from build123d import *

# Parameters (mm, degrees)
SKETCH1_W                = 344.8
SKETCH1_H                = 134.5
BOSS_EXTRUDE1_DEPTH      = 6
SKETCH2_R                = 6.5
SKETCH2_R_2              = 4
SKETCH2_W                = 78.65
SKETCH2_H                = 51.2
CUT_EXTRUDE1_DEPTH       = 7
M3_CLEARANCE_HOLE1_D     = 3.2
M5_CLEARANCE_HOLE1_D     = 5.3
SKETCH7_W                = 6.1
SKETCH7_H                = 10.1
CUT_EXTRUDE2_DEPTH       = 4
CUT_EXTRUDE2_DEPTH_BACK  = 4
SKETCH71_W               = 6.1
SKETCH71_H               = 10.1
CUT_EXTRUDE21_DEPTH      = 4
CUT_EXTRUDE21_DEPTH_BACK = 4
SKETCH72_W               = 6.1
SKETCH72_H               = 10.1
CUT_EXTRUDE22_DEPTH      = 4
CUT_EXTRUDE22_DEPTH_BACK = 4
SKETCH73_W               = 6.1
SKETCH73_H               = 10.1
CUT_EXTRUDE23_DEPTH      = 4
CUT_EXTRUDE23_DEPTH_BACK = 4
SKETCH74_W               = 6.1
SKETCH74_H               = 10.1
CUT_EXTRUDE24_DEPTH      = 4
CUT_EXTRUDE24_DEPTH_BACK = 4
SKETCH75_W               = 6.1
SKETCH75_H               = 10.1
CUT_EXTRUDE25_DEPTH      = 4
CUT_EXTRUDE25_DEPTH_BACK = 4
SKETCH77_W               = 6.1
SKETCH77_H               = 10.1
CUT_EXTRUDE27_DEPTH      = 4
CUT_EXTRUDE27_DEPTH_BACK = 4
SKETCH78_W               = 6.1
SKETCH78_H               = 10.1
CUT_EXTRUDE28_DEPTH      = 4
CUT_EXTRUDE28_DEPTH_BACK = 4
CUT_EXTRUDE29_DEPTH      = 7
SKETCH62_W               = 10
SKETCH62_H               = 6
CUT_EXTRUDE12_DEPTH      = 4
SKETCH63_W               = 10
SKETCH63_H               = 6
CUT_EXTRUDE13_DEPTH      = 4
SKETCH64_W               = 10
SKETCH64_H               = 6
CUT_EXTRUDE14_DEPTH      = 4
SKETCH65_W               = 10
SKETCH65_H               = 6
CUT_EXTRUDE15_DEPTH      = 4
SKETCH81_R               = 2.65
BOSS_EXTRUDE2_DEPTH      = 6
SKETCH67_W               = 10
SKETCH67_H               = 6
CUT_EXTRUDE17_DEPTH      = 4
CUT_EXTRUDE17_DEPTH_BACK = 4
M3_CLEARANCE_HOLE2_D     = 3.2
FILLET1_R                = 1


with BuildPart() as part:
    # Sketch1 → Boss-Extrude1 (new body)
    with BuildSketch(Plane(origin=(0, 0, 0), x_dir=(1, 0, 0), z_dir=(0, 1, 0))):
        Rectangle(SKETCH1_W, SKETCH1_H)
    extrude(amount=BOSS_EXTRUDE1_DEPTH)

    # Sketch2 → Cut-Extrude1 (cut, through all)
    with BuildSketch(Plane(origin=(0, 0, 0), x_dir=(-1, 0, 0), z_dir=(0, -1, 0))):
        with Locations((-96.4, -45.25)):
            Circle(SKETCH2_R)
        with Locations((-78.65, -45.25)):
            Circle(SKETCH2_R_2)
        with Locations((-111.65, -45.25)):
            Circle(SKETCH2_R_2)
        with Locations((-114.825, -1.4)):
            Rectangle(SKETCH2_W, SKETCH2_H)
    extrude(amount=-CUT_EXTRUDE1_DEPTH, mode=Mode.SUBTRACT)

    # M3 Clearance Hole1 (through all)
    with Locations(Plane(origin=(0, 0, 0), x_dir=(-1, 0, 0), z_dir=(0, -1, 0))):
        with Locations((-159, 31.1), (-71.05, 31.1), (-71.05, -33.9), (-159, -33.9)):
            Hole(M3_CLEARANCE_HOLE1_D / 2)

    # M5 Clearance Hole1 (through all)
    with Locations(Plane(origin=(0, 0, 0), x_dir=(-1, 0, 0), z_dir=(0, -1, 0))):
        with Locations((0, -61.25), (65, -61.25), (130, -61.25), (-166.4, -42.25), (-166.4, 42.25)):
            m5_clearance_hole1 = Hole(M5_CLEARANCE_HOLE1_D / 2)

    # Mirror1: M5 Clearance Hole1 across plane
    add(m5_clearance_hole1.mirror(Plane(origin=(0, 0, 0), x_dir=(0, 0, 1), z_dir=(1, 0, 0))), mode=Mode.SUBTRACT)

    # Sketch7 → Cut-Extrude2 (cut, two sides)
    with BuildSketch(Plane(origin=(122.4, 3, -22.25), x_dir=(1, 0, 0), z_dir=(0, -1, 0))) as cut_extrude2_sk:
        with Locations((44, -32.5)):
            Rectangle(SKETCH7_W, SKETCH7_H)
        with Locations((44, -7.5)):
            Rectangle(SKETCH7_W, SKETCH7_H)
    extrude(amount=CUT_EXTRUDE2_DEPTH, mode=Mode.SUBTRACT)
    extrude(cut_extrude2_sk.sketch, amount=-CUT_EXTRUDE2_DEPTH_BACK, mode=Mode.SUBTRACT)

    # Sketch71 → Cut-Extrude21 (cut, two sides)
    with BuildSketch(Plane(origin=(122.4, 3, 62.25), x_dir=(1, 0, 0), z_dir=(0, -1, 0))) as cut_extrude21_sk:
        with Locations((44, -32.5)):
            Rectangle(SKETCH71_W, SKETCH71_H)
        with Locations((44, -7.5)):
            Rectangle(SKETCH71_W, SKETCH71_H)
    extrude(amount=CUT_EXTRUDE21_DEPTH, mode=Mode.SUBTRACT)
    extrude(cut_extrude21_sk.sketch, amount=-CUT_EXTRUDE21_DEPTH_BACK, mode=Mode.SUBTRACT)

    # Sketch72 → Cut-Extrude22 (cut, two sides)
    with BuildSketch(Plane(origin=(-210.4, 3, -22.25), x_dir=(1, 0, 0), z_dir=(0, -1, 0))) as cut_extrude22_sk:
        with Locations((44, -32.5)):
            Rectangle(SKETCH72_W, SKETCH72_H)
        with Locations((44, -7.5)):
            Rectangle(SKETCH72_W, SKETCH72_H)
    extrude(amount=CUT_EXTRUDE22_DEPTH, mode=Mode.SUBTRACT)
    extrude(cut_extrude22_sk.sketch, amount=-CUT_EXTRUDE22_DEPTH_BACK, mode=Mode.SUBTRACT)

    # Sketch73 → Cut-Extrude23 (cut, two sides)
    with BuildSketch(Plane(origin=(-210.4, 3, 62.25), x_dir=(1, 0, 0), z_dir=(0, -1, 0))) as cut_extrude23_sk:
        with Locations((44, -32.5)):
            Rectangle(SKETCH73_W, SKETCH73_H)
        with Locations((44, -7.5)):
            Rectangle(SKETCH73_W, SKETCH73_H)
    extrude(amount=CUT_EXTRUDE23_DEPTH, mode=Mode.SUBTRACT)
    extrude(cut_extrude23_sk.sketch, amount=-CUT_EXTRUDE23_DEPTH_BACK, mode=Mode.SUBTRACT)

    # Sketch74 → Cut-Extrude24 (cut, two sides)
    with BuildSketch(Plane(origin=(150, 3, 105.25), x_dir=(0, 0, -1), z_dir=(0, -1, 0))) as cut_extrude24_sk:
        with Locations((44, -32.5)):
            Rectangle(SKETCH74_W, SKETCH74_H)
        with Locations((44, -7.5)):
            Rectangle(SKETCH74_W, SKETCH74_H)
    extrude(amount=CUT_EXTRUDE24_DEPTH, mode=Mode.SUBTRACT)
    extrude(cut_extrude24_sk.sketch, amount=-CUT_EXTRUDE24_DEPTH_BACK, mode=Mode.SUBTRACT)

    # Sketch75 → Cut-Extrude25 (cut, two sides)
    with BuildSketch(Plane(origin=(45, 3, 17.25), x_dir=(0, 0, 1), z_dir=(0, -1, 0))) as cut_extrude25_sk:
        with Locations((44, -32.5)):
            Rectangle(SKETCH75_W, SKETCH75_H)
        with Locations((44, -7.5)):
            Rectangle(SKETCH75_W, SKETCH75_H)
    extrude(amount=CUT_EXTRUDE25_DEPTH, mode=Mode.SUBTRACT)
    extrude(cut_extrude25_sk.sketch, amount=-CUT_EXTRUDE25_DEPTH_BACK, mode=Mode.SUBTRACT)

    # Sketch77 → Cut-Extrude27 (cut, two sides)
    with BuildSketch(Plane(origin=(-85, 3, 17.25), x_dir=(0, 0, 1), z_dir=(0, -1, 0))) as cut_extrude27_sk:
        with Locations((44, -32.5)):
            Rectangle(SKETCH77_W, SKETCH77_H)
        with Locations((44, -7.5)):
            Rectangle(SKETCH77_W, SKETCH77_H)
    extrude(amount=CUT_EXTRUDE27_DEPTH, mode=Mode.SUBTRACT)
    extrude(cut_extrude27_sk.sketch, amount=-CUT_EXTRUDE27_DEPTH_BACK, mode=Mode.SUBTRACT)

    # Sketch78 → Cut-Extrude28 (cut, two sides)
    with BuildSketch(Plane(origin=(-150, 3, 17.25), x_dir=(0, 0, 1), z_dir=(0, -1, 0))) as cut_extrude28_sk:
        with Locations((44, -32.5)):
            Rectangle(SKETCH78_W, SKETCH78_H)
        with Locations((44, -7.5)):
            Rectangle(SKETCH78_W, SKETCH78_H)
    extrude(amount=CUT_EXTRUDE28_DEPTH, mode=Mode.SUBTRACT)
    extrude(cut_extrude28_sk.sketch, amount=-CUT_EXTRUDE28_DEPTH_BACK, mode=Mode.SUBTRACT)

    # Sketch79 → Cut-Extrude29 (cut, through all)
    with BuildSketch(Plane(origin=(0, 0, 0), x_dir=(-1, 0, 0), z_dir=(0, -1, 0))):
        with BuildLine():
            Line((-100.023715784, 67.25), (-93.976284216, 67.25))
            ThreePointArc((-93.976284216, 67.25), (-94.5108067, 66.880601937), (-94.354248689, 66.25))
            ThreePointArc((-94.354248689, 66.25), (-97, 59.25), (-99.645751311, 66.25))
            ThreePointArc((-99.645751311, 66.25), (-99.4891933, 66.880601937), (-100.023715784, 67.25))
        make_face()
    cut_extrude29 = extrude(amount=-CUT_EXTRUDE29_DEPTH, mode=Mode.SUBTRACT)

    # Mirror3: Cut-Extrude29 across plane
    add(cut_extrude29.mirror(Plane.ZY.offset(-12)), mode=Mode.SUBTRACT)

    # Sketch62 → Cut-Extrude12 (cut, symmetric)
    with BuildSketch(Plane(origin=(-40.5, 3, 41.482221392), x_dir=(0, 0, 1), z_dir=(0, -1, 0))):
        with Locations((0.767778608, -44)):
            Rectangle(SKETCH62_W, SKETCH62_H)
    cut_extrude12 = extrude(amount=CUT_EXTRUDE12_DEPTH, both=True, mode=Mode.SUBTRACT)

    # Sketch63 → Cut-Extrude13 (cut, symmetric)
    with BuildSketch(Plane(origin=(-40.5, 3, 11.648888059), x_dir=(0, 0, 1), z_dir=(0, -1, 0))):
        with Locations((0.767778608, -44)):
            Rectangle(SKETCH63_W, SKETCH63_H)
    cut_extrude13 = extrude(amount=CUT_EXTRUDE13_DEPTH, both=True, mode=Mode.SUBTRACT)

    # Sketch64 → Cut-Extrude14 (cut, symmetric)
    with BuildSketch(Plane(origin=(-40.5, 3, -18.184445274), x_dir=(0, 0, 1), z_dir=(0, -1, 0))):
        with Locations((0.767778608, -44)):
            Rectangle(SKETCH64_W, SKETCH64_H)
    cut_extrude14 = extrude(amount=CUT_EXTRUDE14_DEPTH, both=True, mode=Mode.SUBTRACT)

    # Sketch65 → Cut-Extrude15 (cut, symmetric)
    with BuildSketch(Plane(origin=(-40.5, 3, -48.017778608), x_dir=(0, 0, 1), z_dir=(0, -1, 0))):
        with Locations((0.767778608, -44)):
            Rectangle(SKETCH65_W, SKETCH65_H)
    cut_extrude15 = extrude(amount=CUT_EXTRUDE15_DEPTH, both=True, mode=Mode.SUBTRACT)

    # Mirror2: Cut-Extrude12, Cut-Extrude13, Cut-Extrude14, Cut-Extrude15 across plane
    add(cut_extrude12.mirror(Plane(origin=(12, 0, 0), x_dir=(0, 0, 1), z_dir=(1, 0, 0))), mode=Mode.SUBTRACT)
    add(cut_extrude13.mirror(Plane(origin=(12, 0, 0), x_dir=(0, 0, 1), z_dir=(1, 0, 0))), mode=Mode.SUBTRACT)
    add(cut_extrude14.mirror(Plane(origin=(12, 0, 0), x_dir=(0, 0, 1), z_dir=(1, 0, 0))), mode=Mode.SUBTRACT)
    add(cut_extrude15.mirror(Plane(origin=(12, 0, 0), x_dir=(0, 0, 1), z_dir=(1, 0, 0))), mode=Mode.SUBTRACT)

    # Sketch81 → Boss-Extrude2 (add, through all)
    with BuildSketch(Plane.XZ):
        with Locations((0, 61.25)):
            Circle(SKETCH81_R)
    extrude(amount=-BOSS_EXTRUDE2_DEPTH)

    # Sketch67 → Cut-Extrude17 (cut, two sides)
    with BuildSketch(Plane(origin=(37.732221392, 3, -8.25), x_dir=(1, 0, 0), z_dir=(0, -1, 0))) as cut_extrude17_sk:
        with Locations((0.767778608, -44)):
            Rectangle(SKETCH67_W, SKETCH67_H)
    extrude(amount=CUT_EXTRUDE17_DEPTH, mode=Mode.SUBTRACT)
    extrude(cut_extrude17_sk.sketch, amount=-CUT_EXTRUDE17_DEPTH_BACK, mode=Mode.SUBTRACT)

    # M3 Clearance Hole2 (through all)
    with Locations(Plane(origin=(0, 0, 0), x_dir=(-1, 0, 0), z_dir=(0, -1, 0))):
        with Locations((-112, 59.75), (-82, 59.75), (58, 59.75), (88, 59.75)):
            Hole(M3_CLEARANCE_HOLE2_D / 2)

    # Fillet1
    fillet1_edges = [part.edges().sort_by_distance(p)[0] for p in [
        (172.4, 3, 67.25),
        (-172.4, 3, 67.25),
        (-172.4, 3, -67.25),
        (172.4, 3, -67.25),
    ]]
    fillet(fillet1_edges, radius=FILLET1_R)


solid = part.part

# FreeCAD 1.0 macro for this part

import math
import FreeCAD as App
import Part
import Sketcher
from FreeCAD import Vector


def edges_at(feature, points):
    """Names of the edges that pass closest to the given points."""
    edges = feature.Shape.Edges
    near = lambda p: min(range(len(edges)), key=lambda i: edges[i].distToShape(Part.Vertex(*p))[0])
    return sorted({f"Edge{near(p) + 1}" for p in points})

doc = App.newDocument("Part")
body = doc.addObject("PartDesign::Body", "Body")

# Sketch on XZ plane
sketch1 = body.newObject("Sketcher::SketchObject", "Sketch")
sketch1.AttachmentSupport = (doc.getObject("XZ_Plane"), [""])
sketch1.MapMode = "FlatFace"
sketch1.addGeometry([
    Part.LineSegment(Vector(-172, -67, 0), Vector(-172, 67, 0)),
    Part.LineSegment(Vector(-172, 67, 0), Vector(172, 67, 0)),
    Part.LineSegment(Vector(172, 67, 0), Vector(172, -67, 0)),
    Part.LineSegment(Vector(172, -67, 0), Vector(-172, -67, 0)),
], False)
sketch1.addConstraint([
    Sketcher.Constraint("Coincident", 0, 2, 1, 1),
    Sketcher.Constraint("Coincident", 1, 2, 2, 1),
    Sketcher.Constraint("Coincident", 2, 2, 3, 1),
    Sketcher.Constraint("Coincident", 3, 2, 0, 1),
    Sketcher.Constraint("Vertical", 0),
    Sketcher.Constraint("Horizontal", 1),
    Sketcher.Constraint("Vertical", 2),
    Sketcher.Constraint("Horizontal", 3),
    Sketcher.Constraint("Symmetric", 0, 2, 2, 2, -1, 1),
    Sketcher.Constraint("DistanceX", 1, 1, 1, 2, 344.8),
    Sketcher.Constraint("DistanceY", 0, 1, 0, 2, 134.5),
])
pad1 = body.newObject("PartDesign::Pad", "Pad")
pad1.Profile = sketch1
pad1.Length = 6
pad1.Reversed = True

# Sketch on XZ plane
sketch2 = body.newObject("Sketcher::SketchObject", "Sketch001")
sketch2.AttachmentSupport = (doc.getObject("XZ_Plane"), [""])
sketch2.MapMode = "FlatFace"
sketch2.addGeometry([
    Part.Circle(Vector(96.4, 45.2, 0), Vector(0, 0, 1), 6.5),  # 0
    Part.Circle(Vector(78.7, 45.2, 0), Vector(0, 0, 1), 4),  # 1
    Part.Circle(Vector(111.7, 45.2, 0), Vector(0, 0, 1), 4),  # 2
    Part.LineSegment(Vector(154.2, -24.2, 0), Vector(154.2, 27, 0)),  # 3
    Part.LineSegment(Vector(154.2, 27, 0), Vector(75.5, 27, 0)),  # 4
    Part.LineSegment(Vector(75.5, 27, 0), Vector(75.5, -24.2, 0)),  # 5
    Part.LineSegment(Vector(75.5, -24.2, 0), Vector(154.2, -24.2, 0)),  # 6
], False)
sketch2.addConstraint([
    Sketcher.Constraint("Coincident", 3, 2, 4, 1),
    Sketcher.Constraint("Coincident", 4, 2, 5, 1),
    Sketcher.Constraint("Coincident", 5, 2, 6, 1),
    Sketcher.Constraint("Coincident", 6, 2, 3, 1),
    Sketcher.Constraint("Vertical", 3),
    Sketcher.Constraint("Horizontal", 4),
    Sketcher.Constraint("Vertical", 5),
    Sketcher.Constraint("Horizontal", 6),
    Sketcher.Constraint("Equal", 1, 2),
    Sketcher.Constraint("Horizontal", 0, 3, 1, 3),
    Sketcher.Constraint("Horizontal", 1, 3, 2, 3),
    Sketcher.Constraint("Diameter", 0, 13.0),
    Sketcher.Constraint("Diameter", 1, 8.0),
    Sketcher.Constraint("DistanceY", 3, 1, 3, 2, 51.2),
    Sketcher.Constraint("DistanceY", -1, 1, 3, 2, 27.0),
    Sketcher.Constraint("DistanceX", 1, 3, 2, 3, 33.0),
    Sketcher.Constraint("DistanceX", 4, 2, 4, 1, 78.65),
    Sketcher.Constraint("DistanceX", -1, 1, 0, 3, 96.4),
    Sketcher.Constraint("DistanceX", -1, 1, 4, 2, 75.5),
    Sketcher.Constraint("DistanceX", 2, 3, 3, 2, 42.5),
    Sketcher.Constraint("DistanceY", -1, 1, 0, 3, 45.25),
])
pocket1 = body.newObject("PartDesign::Pocket", "Pocket")
pocket1.Profile = sketch2
pocket1.Type = "ThroughAll"

# Sketch on XZ plane
sketch3 = body.newObject("Sketcher::SketchObject", "Sketch002")
sketch3.AttachmentSupport = (doc.getObject("XZ_Plane"), [""])
sketch3.MapMode = "FlatFace"
sketch3.addGeometry([
    Part.Circle(Vector(159, -31.1, 0), Vector(0, 0, 1), 1.6),
    Part.Circle(Vector(71, -31.1, 0), Vector(0, 0, 1), 1.6),
    Part.Circle(Vector(71, 33.9, 0), Vector(0, 0, 1), 1.6),
    Part.Circle(Vector(159, 33.9, 0), Vector(0, 0, 1), 1.6),
], False)
sketch3.addConstraint([
    Sketcher.Constraint("Equal", 0, 1),
    Sketcher.Constraint("Equal", 1, 2),
    Sketcher.Constraint("Equal", 2, 3),
    Sketcher.Constraint("Horizontal", 0, 3, 1, 3),
    Sketcher.Constraint("Horizontal", 2, 3, 3, 3),
    Sketcher.Constraint("Vertical", 1, 3, 2, 3),
    Sketcher.Constraint("Vertical", 0, 3, 3, 3),
    Sketcher.Constraint("Diameter", 0, 3.2),
    Sketcher.Constraint("DistanceX", -1, 1, 0, 3, 159.0),
    Sketcher.Constraint("DistanceY", 1, 3, 2, 3, 65.0),
    Sketcher.Constraint("DistanceY", 0, 3, -1, 1, 31.1),
    Sketcher.Constraint("DistanceX", -1, 1, 1, 3, 71.05),
])
doc.recompute()
hole = body.newObject("PartDesign::Hole", "Hole")
hole.Profile = sketch3
hole.ThreadType = "None"
hole.Diameter = 3.2
hole.DepthType = "ThroughAll"

# Sketch on XZ plane
sketch4 = body.newObject("Sketcher::SketchObject", "Sketch003")
sketch4.AttachmentSupport = (doc.getObject("XZ_Plane"), [""])
sketch4.MapMode = "FlatFace"
sketch4.addGeometry([
    Part.Circle(Vector(0, 61.2, 0), Vector(0, 0, 1), 2.6),  # 0
    Part.Circle(Vector(-65, 61.2, 0), Vector(0, 0, 1), 2.6),  # 1
    Part.Circle(Vector(-130, 61.2, 0), Vector(0, 0, 1), 2.6),  # 2
    Part.Circle(Vector(166.4, 42.2, 0), Vector(0, 0, 1), 2.6),  # 3
    Part.Circle(Vector(166.4, -42.2, 0), Vector(0, 0, 1), 2.6),  # 4
], False)
sketch4.addConstraint([
    Sketcher.Constraint("Equal", 0, 1),
    Sketcher.Constraint("Equal", 1, 2),
    Sketcher.Constraint("Equal", 2, 3),
    Sketcher.Constraint("Equal", 3, 4),
    Sketcher.Constraint("Symmetric", 3, 3, 4, 3, -1),
    Sketcher.Constraint("PointOnObject", 0, 3, -2),
    Sketcher.Constraint("Horizontal", 0, 3, 1, 3),
    Sketcher.Constraint("Horizontal", 1, 3, 2, 3),
    Sketcher.Constraint("Diameter", 0, 5.3),
    Sketcher.Constraint("DistanceX", 1, 3, -1, 1, 65.0),
    Sketcher.Constraint("DistanceX", 2, 3, -1, 1, 130.0),
    Sketcher.Constraint("DistanceY", 3, 3, 0, 3, 19.0),
    Sketcher.Constraint("DistanceX", -1, 1, 3, 3, 166.4),
    Sketcher.Constraint("DistanceY", 4, 3, 3, 3, 84.5),
])
doc.recompute()
hole2 = body.newObject("PartDesign::Hole", "Hole001")
hole2.Profile = sketch4
hole2.ThreadType = "None"
hole2.Diameter = 5.3
hole2.DepthType = "ThroughAll"
doc.recompute()

mirrored = body.newObject("PartDesign::Mirrored", "Mirrored")
mirrored.Originals = [hole2]
mirrored.MirrorPlane = (doc.getObject("YZ_Plane"), [""])
body.Tip = mirrored

# Sketch on XZ plane
sketch5 = body.newObject("Sketcher::SketchObject", "Sketch004")
sketch5.AttachmentSupport = (doc.getObject("XZ_Plane"), [""])
sketch5.MapMode = "FlatFace"
sketch5.AttachmentOffset = App.Placement(Vector(0, 0, -3), App.Rotation())
sketch5.addGeometry([
    Part.LineSegment(Vector(163, -50, 0), Vector(163, -60, 0)),  # 0
    Part.LineSegment(Vector(163, -60, 0), Vector(169, -60, 0)),  # 1
    Part.LineSegment(Vector(169, -60, 0), Vector(169, -50, 0)),  # 2
    Part.LineSegment(Vector(169, -50, 0), Vector(163, -50, 0)),  # 3
    Part.LineSegment(Vector(163, -25, 0), Vector(163, -35, 0)),  # 4
    Part.LineSegment(Vector(163, -35, 0), Vector(169, -35, 0)),  # 5
    Part.LineSegment(Vector(169, -35, 0), Vector(169, -25, 0)),  # 6
    Part.LineSegment(Vector(169, -25, 0), Vector(163, -25, 0)),  # 7
], False)
sketch5.addConstraint([
    Sketcher.Constraint("Coincident", 0, 2, 1, 1),
    Sketcher.Constraint("Coincident", 1, 2, 2, 1),
    Sketcher.Constraint("Coincident", 2, 2, 3, 1),
    Sketcher.Constraint("Coincident", 3, 2, 0, 1),
    Sketcher.Constraint("Coincident", 4, 2, 5, 1),
    Sketcher.Constraint("Coincident", 5, 2, 6, 1),
    Sketcher.Constraint("Coincident", 6, 2, 7, 1),
    Sketcher.Constraint("Coincident", 7, 2, 4, 1),
    Sketcher.Constraint("Vertical", 0),
    Sketcher.Constraint("Horizontal", 1),
    Sketcher.Constraint("Vertical", 2),
    Sketcher.Constraint("Horizontal", 3),
    Sketcher.Constraint("Vertical", 4),
    Sketcher.Constraint("Horizontal", 5),
    Sketcher.Constraint("Vertical", 6),
    Sketcher.Constraint("Horizontal", 7),
    Sketcher.Constraint("Vertical", 3, 2, 4, 2),
    Sketcher.Constraint("Vertical", 2, 2, 5, 2),
    Sketcher.Constraint("Equal", 2, 4),
    Sketcher.Constraint("DistanceX", 1, 1, 1, 2, 6.1),
    Sketcher.Constraint("DistanceY", 0, 2, 0, 1, 10.1),
    Sketcher.Constraint("DistanceY", 0, 2, 4, 2, 25.0),
    Sketcher.Constraint("DistanceY", 0, 2, -1, 1, 59.8),
    Sketcher.Constraint("DistanceX", -1, 1, 0, 2, 163.35),
])
pocket2 = body.newObject("PartDesign::Pocket", "Pocket001")
pocket2.Profile = sketch5
pocket2.Type = "ThroughAll"
pocket2.Midplane = True

# Sketch on XZ plane
sketch6 = body.newObject("Sketcher::SketchObject", "Sketch005")
sketch6.AttachmentSupport = (doc.getObject("XZ_Plane"), [""])
sketch6.MapMode = "FlatFace"
sketch6.AttachmentOffset = App.Placement(Vector(0, 0, -3), App.Rotation())
sketch6.addGeometry([
    Part.LineSegment(Vector(163, 35, 0), Vector(163, 25, 0)),  # 0
    Part.LineSegment(Vector(163, 25, 0), Vector(169, 25, 0)),  # 1
    Part.LineSegment(Vector(169, 25, 0), Vector(169, 35, 0)),  # 2
    Part.LineSegment(Vector(169, 35, 0), Vector(163, 35, 0)),  # 3
    Part.LineSegment(Vector(163, 60, 0), Vector(163, 50, 0)),  # 4
    Part.LineSegment(Vector(163, 50, 0), Vector(169, 50, 0)),  # 5
    Part.LineSegment(Vector(169, 50, 0), Vector(169, 60, 0)),  # 6
    Part.LineSegment(Vector(169, 60, 0), Vector(163, 60, 0)),  # 7
], False)
sketch6.addConstraint([
    Sketcher.Constraint("Coincident", 0, 2, 1, 1),
    Sketcher.Constraint("Coincident", 1, 2, 2, 1),
    Sketcher.Constraint("Coincident", 2, 2, 3, 1),
    Sketcher.Constraint("Coincident", 3, 2, 0, 1),
    Sketcher.Constraint("Coincident", 4, 2, 5, 1),
    Sketcher.Constraint("Coincident", 5, 2, 6, 1),
    Sketcher.Constraint("Coincident", 6, 2, 7, 1),
    Sketcher.Constraint("Coincident", 7, 2, 4, 1),
    Sketcher.Constraint("Vertical", 0),
    Sketcher.Constraint("Horizontal", 1),
    Sketcher.Constraint("Vertical", 2),
    Sketcher.Constraint("Horizontal", 3),
    Sketcher.Constraint("Vertical", 4),
    Sketcher.Constraint("Horizontal", 5),
    Sketcher.Constraint("Vertical", 6),
    Sketcher.Constraint("Horizontal", 7),
    Sketcher.Constraint("Vertical", 3, 2, 4, 2),
    Sketcher.Constraint("Vertical", 2, 2, 5, 2),
    Sketcher.Constraint("Equal", 2, 4),
    Sketcher.Constraint("DistanceX", 1, 1, 1, 2, 6.1),
    Sketcher.Constraint("DistanceY", 0, 2, 0, 1, 10.1),
    Sketcher.Constraint("DistanceY", 0, 2, 4, 2, 25.0),
    Sketcher.Constraint("DistanceY", -1, 1, 0, 2, 24.7),
    Sketcher.Constraint("DistanceX", -1, 1, 0, 2, 163.35),
])
pocket3 = body.newObject("PartDesign::Pocket", "Pocket002")
pocket3.Profile = sketch6
pocket3.Type = "ThroughAll"
pocket3.Midplane = True

# Sketch on XZ plane
sketch7 = body.newObject("Sketcher::SketchObject", "Sketch006")
sketch7.AttachmentSupport = (doc.getObject("XZ_Plane"), [""])
sketch7.MapMode = "FlatFace"
sketch7.AttachmentOffset = App.Placement(Vector(0, 0, -3), App.Rotation())
sketch7.addGeometry([
    Part.LineSegment(Vector(-169, -50, 0), Vector(-169, -60, 0)),  # 0
    Part.LineSegment(Vector(-169, -60, 0), Vector(-163, -60, 0)),  # 1
    Part.LineSegment(Vector(-163, -60, 0), Vector(-163, -50, 0)),  # 2
    Part.LineSegment(Vector(-163, -50, 0), Vector(-169, -50, 0)),  # 3
    Part.LineSegment(Vector(-169, -25, 0), Vector(-169, -35, 0)),  # 4
    Part.LineSegment(Vector(-169, -35, 0), Vector(-163, -35, 0)),  # 5
    Part.LineSegment(Vector(-163, -35, 0), Vector(-163, -25, 0)),  # 6
    Part.LineSegment(Vector(-163, -25, 0), Vector(-169, -25, 0)),  # 7
], False)
sketch7.addConstraint([
    Sketcher.Constraint("Coincident", 0, 2, 1, 1),
    Sketcher.Constraint("Coincident", 1, 2, 2, 1),
    Sketcher.Constraint("Coincident", 2, 2, 3, 1),
    Sketcher.Constraint("Coincident", 3, 2, 0, 1),
    Sketcher.Constraint("Coincident", 4, 2, 5, 1),
    Sketcher.Constraint("Coincident", 5, 2, 6, 1),
    Sketcher.Constraint("Coincident", 6, 2, 7, 1),
    Sketcher.Constraint("Coincident", 7, 2, 4, 1),
    Sketcher.Constraint("Vertical", 0),
    Sketcher.Constraint("Horizontal", 1),
    Sketcher.Constraint("Vertical", 2),
    Sketcher.Constraint("Horizontal", 3),
    Sketcher.Constraint("Vertical", 4),
    Sketcher.Constraint("Horizontal", 5),
    Sketcher.Constraint("Vertical", 6),
    Sketcher.Constraint("Horizontal", 7),
    Sketcher.Constraint("Vertical", 3, 2, 4, 2),
    Sketcher.Constraint("Vertical", 2, 2, 5, 2),
    Sketcher.Constraint("Equal", 2, 4),
    Sketcher.Constraint("DistanceX", 1, 1, 1, 2, 6.1),
    Sketcher.Constraint("DistanceY", 0, 2, 0, 1, 10.1),
    Sketcher.Constraint("DistanceY", 0, 2, 4, 2, 25.0),
    Sketcher.Constraint("DistanceY", 0, 2, -1, 1, 59.8),
    Sketcher.Constraint("DistanceX", 0, 2, -1, 1, 169.45),
])
pocket4 = body.newObject("PartDesign::Pocket", "Pocket003")
pocket4.Profile = sketch7
pocket4.Type = "ThroughAll"
pocket4.Midplane = True

# Sketch on XZ plane
sketch8 = body.newObject("Sketcher::SketchObject", "Sketch007")
sketch8.AttachmentSupport = (doc.getObject("XZ_Plane"), [""])
sketch8.MapMode = "FlatFace"
sketch8.AttachmentOffset = App.Placement(Vector(0, 0, -3), App.Rotation())
sketch8.addGeometry([
    Part.LineSegment(Vector(-169, 35, 0), Vector(-169, 25, 0)),  # 0
    Part.LineSegment(Vector(-169, 25, 0), Vector(-163, 25, 0)),  # 1
    Part.LineSegment(Vector(-163, 25, 0), Vector(-163, 35, 0)),  # 2
    Part.LineSegment(Vector(-163, 35, 0), Vector(-169, 35, 0)),  # 3
    Part.LineSegment(Vector(-169, 60, 0), Vector(-169, 50, 0)),  # 4
    Part.LineSegment(Vector(-169, 50, 0), Vector(-163, 50, 0)),  # 5
    Part.LineSegment(Vector(-163, 50, 0), Vector(-163, 60, 0)),  # 6
    Part.LineSegment(Vector(-163, 60, 0), Vector(-169, 60, 0)),  # 7
], False)
sketch8.addConstraint([
    Sketcher.Constraint("Coincident", 0, 2, 1, 1),
    Sketcher.Constraint("Coincident", 1, 2, 2, 1),
    Sketcher.Constraint("Coincident", 2, 2, 3, 1),
    Sketcher.Constraint("Coincident", 3, 2, 0, 1),
    Sketcher.Constraint("Coincident", 4, 2, 5, 1),
    Sketcher.Constraint("Coincident", 5, 2, 6, 1),
    Sketcher.Constraint("Coincident", 6, 2, 7, 1),
    Sketcher.Constraint("Coincident", 7, 2, 4, 1),
    Sketcher.Constraint("Vertical", 0),
    Sketcher.Constraint("Horizontal", 1),
    Sketcher.Constraint("Vertical", 2),
    Sketcher.Constraint("Horizontal", 3),
    Sketcher.Constraint("Vertical", 4),
    Sketcher.Constraint("Horizontal", 5),
    Sketcher.Constraint("Vertical", 6),
    Sketcher.Constraint("Horizontal", 7),
    Sketcher.Constraint("Vertical", 3, 2, 4, 2),
    Sketcher.Constraint("Vertical", 2, 2, 5, 2),
    Sketcher.Constraint("Equal", 2, 4),
    Sketcher.Constraint("DistanceX", 1, 1, 1, 2, 6.1),
    Sketcher.Constraint("DistanceY", 0, 2, 0, 1, 10.1),
    Sketcher.Constraint("DistanceY", 0, 2, 4, 2, 25.0),
    Sketcher.Constraint("DistanceY", -1, 1, 0, 2, 24.7),
    Sketcher.Constraint("DistanceX", 0, 2, -1, 1, 169.45),
])
pocket5 = body.newObject("PartDesign::Pocket", "Pocket004")
pocket5.Profile = sketch8
pocket5.Type = "ThroughAll"
pocket5.Midplane = True

# Sketch on XZ plane
sketch9 = body.newObject("Sketcher::SketchObject", "Sketch008")
sketch9.AttachmentSupport = (doc.getObject("XZ_Plane"), [""])
sketch9.MapMode = "FlatFace"
sketch9.AttachmentOffset = App.Placement(Vector(0, 0, -3), App.Rotation())
sketch9.addGeometry([
    Part.LineSegment(Vector(123, 64, 0), Vector(112, 64, 0)),  # 0
    Part.LineSegment(Vector(112, 64, 0), Vector(112, 58, 0)),  # 1
    Part.LineSegment(Vector(112, 58, 0), Vector(123, 58, 0)),  # 2
    Part.LineSegment(Vector(123, 58, 0), Vector(123, 64, 0)),  # 3
    Part.LineSegment(Vector(148, 64, 0), Vector(137, 64, 0)),  # 4
    Part.LineSegment(Vector(137, 64, 0), Vector(137, 58, 0)),  # 5
    Part.LineSegment(Vector(137, 58, 0), Vector(148, 58, 0)),  # 6
    Part.LineSegment(Vector(148, 58, 0), Vector(148, 64, 0)),  # 7
], False)
sketch9.addConstraint([
    Sketcher.Constraint("Coincident", 0, 2, 1, 1),
    Sketcher.Constraint("Coincident", 1, 2, 2, 1),
    Sketcher.Constraint("Coincident", 2, 2, 3, 1),
    Sketcher.Constraint("Coincident", 3, 2, 0, 1),
    Sketcher.Constraint("Coincident", 4, 2, 5, 1),
    Sketcher.Constraint("Coincident", 5, 2, 6, 1),
    Sketcher.Constraint("Coincident", 6, 2, 7, 1),
    Sketcher.Constraint("Coincident", 7, 2, 4, 1),
    Sketcher.Constraint("Horizontal", 0),
    Sketcher.Constraint("Vertical", 1),
    Sketcher.Constraint("Horizontal", 2),
    Sketcher.Constraint("Vertical", 3),
    Sketcher.Constraint("Horizontal", 4),
    Sketcher.Constraint("Vertical", 5),
    Sketcher.Constraint("Horizontal", 6),
    Sketcher.Constraint("Vertical", 7),
    Sketcher.Constraint("Horizontal", 3, 2, 4, 2),
    Sketcher.Constraint("Horizontal", 2, 2, 5, 2),
    Sketcher.Constraint("Equal", 2, 4),
    Sketcher.Constraint("DistanceX", 0, 2, 0, 1, 10.1),
    Sketcher.Constraint("DistanceY", 1, 2, 1, 1, 6.1),
    Sketcher.Constraint("DistanceX", 0, 2, 4, 2, 25.0),
    Sketcher.Constraint("DistanceY", -1, 1, 0, 2, 64.3),
    Sketcher.Constraint("DistanceX", -1, 1, 0, 2, 112.45),
])
pocket6 = body.newObject("PartDesign::Pocket", "Pocket005")
pocket6.Profile = sketch9
pocket6.Type = "ThroughAll"
pocket6.Midplane = True

# Sketch on XZ plane
sketch10 = body.newObject("Sketcher::SketchObject", "Sketch009")
sketch10.AttachmentSupport = (doc.getObject("XZ_Plane"), [""])
sketch10.MapMode = "FlatFace"
sketch10.AttachmentOffset = App.Placement(Vector(0, 0, -3), App.Rotation())
sketch10.addGeometry([
    Part.LineSegment(Vector(72, 58, 0), Vector(83, 58, 0)),  # 0
    Part.LineSegment(Vector(83, 58, 0), Vector(83, 64, 0)),  # 1
    Part.LineSegment(Vector(83, 64, 0), Vector(72, 64, 0)),  # 2
    Part.LineSegment(Vector(72, 64, 0), Vector(72, 58, 0)),  # 3
    Part.LineSegment(Vector(47, 58, 0), Vector(58, 58, 0)),  # 4
    Part.LineSegment(Vector(58, 58, 0), Vector(58, 64, 0)),  # 5
    Part.LineSegment(Vector(58, 64, 0), Vector(47, 64, 0)),  # 6
    Part.LineSegment(Vector(47, 64, 0), Vector(47, 58, 0)),  # 7
], False)
sketch10.addConstraint([
    Sketcher.Constraint("Coincident", 0, 2, 1, 1),
    Sketcher.Constraint("Coincident", 1, 2, 2, 1),
    Sketcher.Constraint("Coincident", 2, 2, 3, 1),
    Sketcher.Constraint("Coincident", 3, 2, 0, 1),
    Sketcher.Constraint("Coincident", 4, 2, 5, 1),
    Sketcher.Constraint("Coincident", 5, 2, 6, 1),
    Sketcher.Constraint("Coincident", 6, 2, 7, 1),
    Sketcher.Constraint("Coincident", 7, 2, 4, 1),
    Sketcher.Constraint("Horizontal", 0),
    Sketcher.Constraint("Vertical", 1),
    Sketcher.Constraint("Horizontal", 2),
    Sketcher.Constraint("Vertical", 3),
    Sketcher.Constraint("Horizontal", 4),
    Sketcher.Constraint("Vertical", 5),
    Sketcher.Constraint("Horizontal", 6),
    Sketcher.Constraint("Vertical", 7),
    Sketcher.Constraint("Horizontal", 3, 2, 4, 2),
    Sketcher.Constraint("Horizontal", 2, 2, 5, 2),
    Sketcher.Constraint("Equal", 2, 4),
    Sketcher.Constraint("DistanceX", 0, 1, 0, 2, 10.1),
    Sketcher.Constraint("DistanceY", 1, 1, 1, 2, 6.1),
    Sketcher.Constraint("DistanceX", 4, 2, 0, 2, 25.0),
    Sketcher.Constraint("DistanceY", -1, 1, 0, 2, 58.2),
    Sketcher.Constraint("DistanceX", -1, 1, 0, 2, 82.55),
])
pocket7 = body.newObject("PartDesign::Pocket", "Pocket006")
pocket7.Profile = sketch10
pocket7.Type = "ThroughAll"
pocket7.Midplane = True

# Sketch on XZ plane
sketch11 = body.newObject("Sketcher::SketchObject", "Sketch010")
sketch11.AttachmentSupport = (doc.getObject("XZ_Plane"), [""])
sketch11.MapMode = "FlatFace"
sketch11.AttachmentOffset = App.Placement(Vector(0, 0, -3), App.Rotation())
sketch11.addGeometry([
    Part.LineSegment(Vector(-58, 58, 0), Vector(-47, 58, 0)),  # 0
    Part.LineSegment(Vector(-47, 58, 0), Vector(-47, 64, 0)),  # 1
    Part.LineSegment(Vector(-47, 64, 0), Vector(-58, 64, 0)),  # 2
    Part.LineSegment(Vector(-58, 64, 0), Vector(-58, 58, 0)),  # 3
    Part.LineSegment(Vector(-83, 58, 0), Vector(-72, 58, 0)),  # 4
    Part.LineSegment(Vector(-72, 58, 0), Vector(-72, 64, 0)),  # 5
    Part.LineSegment(Vector(-72, 64, 0), Vector(-83, 64, 0)),  # 6
    Part.LineSegment(Vector(-83, 64, 0), Vector(-83, 58, 0)),  # 7
], False)
sketch11.addConstraint([
    Sketcher.Constraint("Coincident", 0, 2, 1, 1),
    Sketcher.Constraint("Coincident", 1, 2, 2, 1),
    Sketcher.Constraint("Coincident", 2, 2, 3, 1),
    Sketcher.Constraint("Coincident", 3, 2, 0, 1),
    Sketcher.Constraint("Coincident", 4, 2, 5, 1),
    Sketcher.Constraint("Coincident", 5, 2, 6, 1),
    Sketcher.Constraint("Coincident", 6, 2, 7, 1),
    Sketcher.Constraint("Coincident", 7, 2, 4, 1),
    Sketcher.Constraint("Horizontal", 0),
    Sketcher.Constraint("Vertical", 1),
    Sketcher.Constraint("Horizontal", 2),
    Sketcher.Constraint("Vertical", 3),
    Sketcher.Constraint("Horizontal", 4),
    Sketcher.Constraint("Vertical", 5),
    Sketcher.Constraint("Horizontal", 6),
    Sketcher.Constraint("Vertical", 7),
    Sketcher.Constraint("Horizontal", 3, 2, 4, 2),
    Sketcher.Constraint("Horizontal", 2, 2, 5, 2),
    Sketcher.Constraint("Equal", 2, 4),
    Sketcher.Constraint("DistanceX", 0, 1, 0, 2, 10.1),
    Sketcher.Constraint("DistanceY", 1, 1, 1, 2, 6.1),
    Sketcher.Constraint("DistanceX", 4, 2, 0, 2, 25.0),
    Sketcher.Constraint("DistanceY", -1, 1, 0, 2, 58.2),
    Sketcher.Constraint("DistanceX", 0, 2, -1, 1, 47.45),
])
pocket8 = body.newObject("PartDesign::Pocket", "Pocket007")
pocket8.Profile = sketch11
pocket8.Type = "ThroughAll"
pocket8.Midplane = True

# Sketch on XZ plane
sketch12 = body.newObject("Sketcher::SketchObject", "Sketch011")
sketch12.AttachmentSupport = (doc.getObject("XZ_Plane"), [""])
sketch12.MapMode = "FlatFace"
sketch12.AttachmentOffset = App.Placement(Vector(0, 0, -3), App.Rotation())
sketch12.addGeometry([
    Part.LineSegment(Vector(-123, 58, 0), Vector(-112, 58, 0)),  # 0
    Part.LineSegment(Vector(-112, 58, 0), Vector(-112, 64, 0)),  # 1
    Part.LineSegment(Vector(-112, 64, 0), Vector(-123, 64, 0)),  # 2
    Part.LineSegment(Vector(-123, 64, 0), Vector(-123, 58, 0)),  # 3
    Part.LineSegment(Vector(-148, 58, 0), Vector(-137, 58, 0)),  # 4
    Part.LineSegment(Vector(-137, 58, 0), Vector(-137, 64, 0)),  # 5
    Part.LineSegment(Vector(-137, 64, 0), Vector(-148, 64, 0)),  # 6
    Part.LineSegment(Vector(-148, 64, 0), Vector(-148, 58, 0)),  # 7
], False)
sketch12.addConstraint([
    Sketcher.Constraint("Coincident", 0, 2, 1, 1),
    Sketcher.Constraint("Coincident", 1, 2, 2, 1),
    Sketcher.Constraint("Coincident", 2, 2, 3, 1),
    Sketcher.Constraint("Coincident", 3, 2, 0, 1),
    Sketcher.Constraint("Coincident", 4, 2, 5, 1),
    Sketcher.Constraint("Coincident", 5, 2, 6, 1),
    Sketcher.Constraint("Coincident", 6, 2, 7, 1),
    Sketcher.Constraint("Coincident", 7, 2, 4, 1),
    Sketcher.Constraint("Horizontal", 0),
    Sketcher.Constraint("Vertical", 1),
    Sketcher.Constraint("Horizontal", 2),
    Sketcher.Constraint("Vertical", 3),
    Sketcher.Constraint("Horizontal", 4),
    Sketcher.Constraint("Vertical", 5),
    Sketcher.Constraint("Horizontal", 6),
    Sketcher.Constraint("Vertical", 7),
    Sketcher.Constraint("Horizontal", 3, 2, 4, 2),
    Sketcher.Constraint("Horizontal", 2, 2, 5, 2),
    Sketcher.Constraint("Equal", 2, 4),
    Sketcher.Constraint("DistanceX", 0, 1, 0, 2, 10.1),
    Sketcher.Constraint("DistanceY", 1, 1, 1, 2, 6.1),
    Sketcher.Constraint("DistanceX", 4, 2, 0, 2, 25.0),
    Sketcher.Constraint("DistanceY", -1, 1, 0, 2, 58.2),
    Sketcher.Constraint("DistanceX", 0, 2, -1, 1, 112.45),
])
pocket9 = body.newObject("PartDesign::Pocket", "Pocket008")
pocket9.Profile = sketch12
pocket9.Type = "ThroughAll"
pocket9.Midplane = True

# Sketch on XZ plane
sketch13 = body.newObject("Sketcher::SketchObject", "Sketch012")
sketch13.AttachmentSupport = (doc.getObject("XZ_Plane"), [""])
sketch13.MapMode = "FlatFace"
sketch13.addGeometry([
    Part.LineSegment(Vector(94, -67.2, 0), Vector(100, -67.2, 0)),
    Part.ArcOfCircle(Part.Circle(Vector(100, -66.7, 0), Vector(0, 0, 1), 0.6), math.radians(131), math.radians(270)),
    Part.ArcOfCircle(Part.Circle(Vector(97, -63.2, 0), Vector(0, 0, 1), 4), math.radians(-49), math.radians(229)),
    Part.ArcOfCircle(Part.Circle(Vector(94, -66.7, 0), Vector(0, 0, 1), 0.6), math.radians(-90), math.radians(49)),
], False)
sketch13.addConstraint([
    Sketcher.Constraint("Tangent", 0, 2, 1, 2),
    Sketcher.Constraint("Tangent", 1, 1, 2, 1),
    Sketcher.Constraint("Tangent", 2, 2, 3, 2),
    Sketcher.Constraint("Tangent", 3, 1, 0, 1),
    Sketcher.Constraint("Horizontal", 0),
    Sketcher.Constraint("Equal", 1, 3),
    Sketcher.Constraint("Radius", 2, 4.0),
    Sketcher.Constraint("DistanceX", -1, 1, 2, 3, 97.0),
    Sketcher.Constraint("DistanceY", 0, 2, 2, 3, 4.0),
    Sketcher.Constraint("DistanceY", 0, 2, 1, 1, 1.0),
    Sketcher.Constraint("DistanceY", 2, 3, -1, 1, 63.25),
])
pocket10 = body.newObject("PartDesign::Pocket", "Pocket009")
pocket10.Profile = sketch13
pocket10.Type = "ThroughAll"
doc.recompute()

datumplane = body.newObject("PartDesign::Plane", "DatumPlane")
datumplane.AttachmentSupport = (doc.getObject("YZ_Plane"), [""])
datumplane.MapMode = "FlatFace"
datumplane.AttachmentOffset = App.Placement(Vector(0, 0, 12), App.Rotation())
mirrored2 = body.newObject("PartDesign::Mirrored", "Mirrored001")
mirrored2.Originals = [pocket10]
mirrored2.MirrorPlane = (datumplane, [""])
body.Tip = mirrored2

# Sketch on XZ plane
sketch14 = body.newObject("Sketcher::SketchObject", "Sketch013")
sketch14.AttachmentSupport = (doc.getObject("XZ_Plane"), [""])
sketch14.MapMode = "FlatFace"
sketch14.AttachmentOffset = App.Placement(Vector(0, 0, -3), App.Rotation())
sketch14.addGeometry([
    Part.LineSegment(Vector(0, 37, 0), Vector(6, 37, 0)),
    Part.LineSegment(Vector(6, 37, 0), Vector(6, 47, 0)),
    Part.LineSegment(Vector(6, 47, 0), Vector(0, 47, 0)),
    Part.LineSegment(Vector(0, 47, 0), Vector(0, 37, 0)),
], False)
sketch14.addConstraint([
    Sketcher.Constraint("Coincident", 0, 2, 1, 1),
    Sketcher.Constraint("Coincident", 1, 2, 2, 1),
    Sketcher.Constraint("Coincident", 2, 2, 3, 1),
    Sketcher.Constraint("Coincident", 3, 2, 0, 1),
    Sketcher.Constraint("Horizontal", 0),
    Sketcher.Constraint("Vertical", 1),
    Sketcher.Constraint("Horizontal", 2),
    Sketcher.Constraint("Vertical", 3),
    Sketcher.Constraint("DistanceX", 0, 1, 0, 2, 6.0),
    Sketcher.Constraint("DistanceY", 1, 1, 1, 2, 10.0),
    Sketcher.Constraint("DistanceX", -1, 1, 0, 2, 6.5),
    Sketcher.Constraint("DistanceY", -1, 1, 0, 2, 37.25),
])
pocket11 = body.newObject("PartDesign::Pocket", "Pocket010")
pocket11.Profile = sketch14
pocket11.Length = 8
pocket11.Midplane = True

# Sketch on XZ plane
sketch15 = body.newObject("Sketcher::SketchObject", "Sketch014")
sketch15.AttachmentSupport = (doc.getObject("XZ_Plane"), [""])
sketch15.MapMode = "FlatFace"
sketch15.AttachmentOffset = App.Placement(Vector(0, 0, -3), App.Rotation())
sketch15.addGeometry([
    Part.LineSegment(Vector(0, 7, 0), Vector(6, 7, 0)),
    Part.LineSegment(Vector(6, 7, 0), Vector(6, 17, 0)),
    Part.LineSegment(Vector(6, 17, 0), Vector(0, 17, 0)),
    Part.LineSegment(Vector(0, 17, 0), Vector(0, 7, 0)),
], False)
sketch15.addConstraint([
    Sketcher.Constraint("Coincident", 0, 2, 1, 1),
    Sketcher.Constraint("Coincident", 1, 2, 2, 1),
    Sketcher.Constraint("Coincident", 2, 2, 3, 1),
    Sketcher.Constraint("Coincident", 3, 2, 0, 1),
    Sketcher.Constraint("Horizontal", 0),
    Sketcher.Constraint("Vertical", 1),
    Sketcher.Constraint("Horizontal", 2),
    Sketcher.Constraint("Vertical", 3),
    Sketcher.Constraint("DistanceX", 0, 1, 0, 2, 6.0),
    Sketcher.Constraint("DistanceY", 1, 1, 1, 2, 10.0),
    Sketcher.Constraint("DistanceX", -1, 1, 0, 2, 6.5),
    Sketcher.Constraint("DistanceY", -1, 1, 0, 2, 7.416667),
])
pocket12 = body.newObject("PartDesign::Pocket", "Pocket011")
pocket12.Profile = sketch15
pocket12.Length = 8
pocket12.Midplane = True

# Sketch on XZ plane
sketch16 = body.newObject("Sketcher::SketchObject", "Sketch015")
sketch16.AttachmentSupport = (doc.getObject("XZ_Plane"), [""])
sketch16.MapMode = "FlatFace"
sketch16.AttachmentOffset = App.Placement(Vector(0, 0, -3), App.Rotation())
sketch16.addGeometry([
    Part.LineSegment(Vector(0, -22, 0), Vector(6, -22, 0)),
    Part.LineSegment(Vector(6, -22, 0), Vector(6, -12, 0)),
    Part.LineSegment(Vector(6, -12, 0), Vector(0, -12, 0)),
    Part.LineSegment(Vector(0, -12, 0), Vector(0, -22, 0)),
], False)
sketch16.addConstraint([
    Sketcher.Constraint("Coincident", 0, 2, 1, 1),
    Sketcher.Constraint("Coincident", 1, 2, 2, 1),
    Sketcher.Constraint("Coincident", 2, 2, 3, 1),
    Sketcher.Constraint("Coincident", 3, 2, 0, 1),
    Sketcher.Constraint("Horizontal", 0),
    Sketcher.Constraint("Vertical", 1),
    Sketcher.Constraint("Horizontal", 2),
    Sketcher.Constraint("Vertical", 3),
    Sketcher.Constraint("DistanceX", 0, 1, 0, 2, 6.0),
    Sketcher.Constraint("DistanceY", 1, 1, 1, 2, 10.0),
    Sketcher.Constraint("DistanceX", -1, 1, 0, 2, 6.5),
    Sketcher.Constraint("DistanceY", 0, 2, -1, 1, 22.416667),
])
pocket13 = body.newObject("PartDesign::Pocket", "Pocket012")
pocket13.Profile = sketch16
pocket13.Length = 8
pocket13.Midplane = True

# Sketch on XZ plane
sketch17 = body.newObject("Sketcher::SketchObject", "Sketch016")
sketch17.AttachmentSupport = (doc.getObject("XZ_Plane"), [""])
sketch17.MapMode = "FlatFace"
sketch17.AttachmentOffset = App.Placement(Vector(0, 0, -3), App.Rotation())
sketch17.addGeometry([
    Part.LineSegment(Vector(0, -52, 0), Vector(6, -52, 0)),
    Part.LineSegment(Vector(6, -52, 0), Vector(6, -42, 0)),
    Part.LineSegment(Vector(6, -42, 0), Vector(0, -42, 0)),
    Part.LineSegment(Vector(0, -42, 0), Vector(0, -52, 0)),
], False)
sketch17.addConstraint([
    Sketcher.Constraint("Coincident", 0, 2, 1, 1),
    Sketcher.Constraint("Coincident", 1, 2, 2, 1),
    Sketcher.Constraint("Coincident", 2, 2, 3, 1),
    Sketcher.Constraint("Coincident", 3, 2, 0, 1),
    Sketcher.Constraint("Horizontal", 0),
    Sketcher.Constraint("Vertical", 1),
    Sketcher.Constraint("Horizontal", 2),
    Sketcher.Constraint("Vertical", 3),
    Sketcher.Constraint("DistanceX", 0, 1, 0, 2, 6.0),
    Sketcher.Constraint("DistanceY", 1, 1, 1, 2, 10.0),
    Sketcher.Constraint("DistanceX", -1, 1, 0, 2, 6.5),
    Sketcher.Constraint("DistanceY", 0, 2, -1, 1, 52.25),
])
pocket14 = body.newObject("PartDesign::Pocket", "Pocket013")
pocket14.Profile = sketch17
pocket14.Length = 8
pocket14.Midplane = True
doc.recompute()

datumplane2 = body.newObject("PartDesign::Plane", "DatumPlane001")
datumplane2.AttachmentSupport = (doc.getObject("YZ_Plane"), [""])
datumplane2.MapMode = "FlatFace"
datumplane2.AttachmentOffset = App.Placement(Vector(0, 0, 12), App.Rotation())
mirrored3 = body.newObject("PartDesign::Mirrored", "Mirrored002")
mirrored3.Originals = [pocket11, pocket12, pocket13, pocket14]
mirrored3.MirrorPlane = (datumplane2, [""])
body.Tip = mirrored3

# Sketch on XZ plane
sketch18 = body.newObject("Sketcher::SketchObject", "Sketch017")
sketch18.AttachmentSupport = (doc.getObject("XZ_Plane"), [""])
sketch18.MapMode = "FlatFace"
sketch18.addGeometry(Part.Circle(Vector(0, 61.2, 0), Vector(0, 0, 1), 2.6), False)
sketch18.addConstraint([
    Sketcher.Constraint("PointOnObject", 0, 3, -2),
    Sketcher.Constraint("Diameter", 0, 5.3),
    Sketcher.Constraint("DistanceY", -1, 1, 0, 3, 61.25),
])
pad2 = body.newObject("PartDesign::Pad", "Pad001")
pad2.Profile = sketch18
pad2.Length = 6
pad2.Reversed = True

# Sketch on XZ plane
sketch19 = body.newObject("Sketcher::SketchObject", "Sketch018")
sketch19.AttachmentSupport = (doc.getObject("XZ_Plane"), [""])
sketch19.MapMode = "FlatFace"
sketch19.AttachmentOffset = App.Placement(Vector(0, 0, -3), App.Rotation())
sketch19.addGeometry([
    Part.LineSegment(Vector(34, -49, 0), Vector(34, -55, 0)),
    Part.LineSegment(Vector(34, -55, 0), Vector(44, -55, 0)),
    Part.LineSegment(Vector(44, -55, 0), Vector(44, -49, 0)),
    Part.LineSegment(Vector(44, -49, 0), Vector(34, -49, 0)),
], False)
sketch19.addConstraint([
    Sketcher.Constraint("Coincident", 0, 2, 1, 1),
    Sketcher.Constraint("Coincident", 1, 2, 2, 1),
    Sketcher.Constraint("Coincident", 2, 2, 3, 1),
    Sketcher.Constraint("Coincident", 3, 2, 0, 1),
    Sketcher.Constraint("Vertical", 0),
    Sketcher.Constraint("Horizontal", 1),
    Sketcher.Constraint("Vertical", 2),
    Sketcher.Constraint("Horizontal", 3),
    Sketcher.Constraint("DistanceX", 1, 1, 1, 2, 10.0),
    Sketcher.Constraint("DistanceY", 0, 2, 0, 1, 6.0),
    Sketcher.Constraint("DistanceX", -1, 1, 0, 2, 33.5),
    Sketcher.Constraint("DistanceY", 0, 2, -1, 1, 55.25),
])
pocket15 = body.newObject("PartDesign::Pocket", "Pocket014")
pocket15.Profile = sketch19
pocket15.Type = "ThroughAll"
pocket15.Midplane = True

# Sketch on XZ plane
sketch20 = body.newObject("Sketcher::SketchObject", "Sketch019")
sketch20.AttachmentSupport = (doc.getObject("XZ_Plane"), [""])
sketch20.MapMode = "FlatFace"
sketch20.addGeometry([
    Part.Circle(Vector(112, -59.8, 0), Vector(0, 0, 1), 1.6),
    Part.Circle(Vector(82, -59.8, 0), Vector(0, 0, 1), 1.6),
    Part.Circle(Vector(-58, -59.8, 0), Vector(0, 0, 1), 1.6),
    Part.Circle(Vector(-88, -59.8, 0), Vector(0, 0, 1), 1.6),
], False)
sketch20.addConstraint([
    Sketcher.Constraint("Equal", 0, 1),
    Sketcher.Constraint("Equal", 1, 2),
    Sketcher.Constraint("Equal", 2, 3),
    Sketcher.Constraint("Horizontal", 0, 3, 1, 3),
    Sketcher.Constraint("Horizontal", 1, 3, 2, 3),
    Sketcher.Constraint("Horizontal", 2, 3, 3, 3),
    Sketcher.Constraint("Diameter", 0, 3.2),
    Sketcher.Constraint("DistanceX", -1, 1, 0, 3, 112.0),
    Sketcher.Constraint("DistanceX", -1, 1, 1, 3, 82.0),
    Sketcher.Constraint("DistanceX", 2, 3, -1, 1, 58.0),
    Sketcher.Constraint("DistanceX", 3, 3, -1, 1, 88.0),
    Sketcher.Constraint("DistanceY", 0, 3, -1, 1, 59.75),
])
doc.recompute()
hole3 = body.newObject("PartDesign::Hole", "Hole002")
hole3.Profile = sketch20
hole3.ThreadType = "None"
hole3.Diameter = 3.2
hole3.DepthType = "ThroughAll"
doc.recompute()

fillet = body.newObject("PartDesign::Fillet", "Fillet")
fillet.Base = (hole3, edges_at(hole3, [
    (172.4, 3, 67.25),
    (-172.4, 3, 67.25),
    (-172.4, 3, -67.25),
    (172.4, 3, -67.25),
]))
fillet.Radius = 1

doc.recompute()
